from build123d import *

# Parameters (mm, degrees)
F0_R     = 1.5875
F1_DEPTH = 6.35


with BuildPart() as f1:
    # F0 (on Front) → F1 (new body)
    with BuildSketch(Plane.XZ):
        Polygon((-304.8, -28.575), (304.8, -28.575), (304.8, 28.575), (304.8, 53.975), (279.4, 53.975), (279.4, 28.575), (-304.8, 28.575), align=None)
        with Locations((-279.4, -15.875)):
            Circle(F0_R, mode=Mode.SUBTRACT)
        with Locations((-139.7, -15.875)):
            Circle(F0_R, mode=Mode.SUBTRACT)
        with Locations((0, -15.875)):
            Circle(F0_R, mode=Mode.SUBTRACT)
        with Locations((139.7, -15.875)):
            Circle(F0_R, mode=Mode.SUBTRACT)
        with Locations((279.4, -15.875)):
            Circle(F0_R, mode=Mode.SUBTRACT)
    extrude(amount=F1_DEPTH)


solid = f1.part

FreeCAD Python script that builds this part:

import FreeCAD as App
import Part
import Sketcher
from FreeCAD import Vector
Q = App.Units.Quantity

doc = App.newDocument("Part")
body = doc.addObject("PartDesign::Body", "Body")

sketch1 = body.newObject("Sketcher::SketchObject", "Sketch")
sketch1.AttachmentSupport = (doc.getObject("XZ_Plane"), [""])
sketch1.MapMode = "FlatFace"
sketch1.addGeometry([
    Part.LineSegment(Vector(-304.8, -28.6, 0), Vector(304.8, -28.6, 0)),
    Part.LineSegment(Vector(304.8, -28.6, 0), Vector(304.8, 54, 0)),
    Part.LineSegment(Vector(304.8, 54, 0), Vector(279.4, 54, 0)),
    Part.LineSegment(Vector(279.4, 54, 0), Vector(279.4, 28.6, 0)),
    Part.LineSegment(Vector(279.4, 28.6, 0), Vector(-304.8, 28.6, 0)),
    Part.LineSegment(Vector(-304.8, 28.6, 0), Vector(-304.8, -28.6, 0)),
    Part.Circle(Vector(-279.4, -15.9, 0), Vector(0, 0, 1), 1.6),
    Part.Circle(Vector(-139.7, -15.9, 0), Vector(0, 0, 1), 1.6),
    Part.Circle(Vector(0, -15.9, 0), Vector(0, 0, 1), 1.6),
    Part.Circle(Vector(139.7, -15.9, 0), Vector(0, 0, 1), 1.6),
    Part.Circle(Vector(279.4, -15.9, 0), Vector(0, 0, 1), 1.6),
], False)
sketch1.addConstraint([
    Sketcher.Constraint("Coincident", 0, 2, 1, 1),
    Sketcher.Constraint("Coincident", 1, 2, 2, 1),
    Sketcher.Constraint("Coincident", 2, 2, 3, 1),
    Sketcher.Constraint("Coincident", 3, 2, 4, 1),
    Sketcher.Constraint("Coincident", 4, 2, 5, 1),
    Sketcher.Constraint("Coincident", 5, 2, 0, 1),
    Sketcher.Constraint("Horizontal", 0),
    Sketcher.Constraint("Vertical", 1),
    Sketcher.Constraint("Horizontal", 2),
    Sketcher.Constraint("Vertical", 3),
    Sketcher.Constraint("Horizontal", 4),
    Sketcher.Constraint("Vertical", 5),
    Sketcher.Constraint("Equal", 6, 7),
    Sketcher.Constraint("Equal", 7, 8),
    Sketcher.Constraint("Equal", 8, 9),
    Sketcher.Constraint("Equal", 9, 10),
    Sketcher.Constraint("Symmetric", 0, 2, 4, 2, -1, 1),
    Sketcher.Constraint("Symmetric", 7, 3, 9, 3, -2),
    Sketcher.Constraint("Symmetric", 6, 3, 10, 3, -2),
    Sketcher.Constraint("PointOnObject", 8, 3, -2),
    Sketcher.Constraint("Horizontal", 6, 3, 7, 3),
    Sketcher.Constraint("Horizontal", 7, 3, 8, 3),
    Sketcher.Constraint("Vertical", 10, 3, 2, 2),
    Sketcher.Constraint("Equal", 2, 3),
    Sketcher.Constraint("DistanceX", 0, 1, 0, 2, Q("24 in")),
    Sketcher.Constraint("DistanceX", 2, 2, 2, 1, Q("1 in")),
    Sketcher.Constraint("Diameter", 6, Q("0.125 in")),
    Sketcher.Constraint("DistanceX", 7, 3, 9, 3, Q("11 in")),
    Sketcher.Constraint("DistanceY", 1, 1, 1, 2, Q("3.25 in")),
    Sketcher.Constraint("DistanceY", 0, 2, 10, 3, Q("0.5 in")),
])
pad1 = body.newObject("PartDesign::Pad", "Pad")
pad1.Profile = sketch1
pad1.Length = Q("0.25 in")

doc.recompute()
